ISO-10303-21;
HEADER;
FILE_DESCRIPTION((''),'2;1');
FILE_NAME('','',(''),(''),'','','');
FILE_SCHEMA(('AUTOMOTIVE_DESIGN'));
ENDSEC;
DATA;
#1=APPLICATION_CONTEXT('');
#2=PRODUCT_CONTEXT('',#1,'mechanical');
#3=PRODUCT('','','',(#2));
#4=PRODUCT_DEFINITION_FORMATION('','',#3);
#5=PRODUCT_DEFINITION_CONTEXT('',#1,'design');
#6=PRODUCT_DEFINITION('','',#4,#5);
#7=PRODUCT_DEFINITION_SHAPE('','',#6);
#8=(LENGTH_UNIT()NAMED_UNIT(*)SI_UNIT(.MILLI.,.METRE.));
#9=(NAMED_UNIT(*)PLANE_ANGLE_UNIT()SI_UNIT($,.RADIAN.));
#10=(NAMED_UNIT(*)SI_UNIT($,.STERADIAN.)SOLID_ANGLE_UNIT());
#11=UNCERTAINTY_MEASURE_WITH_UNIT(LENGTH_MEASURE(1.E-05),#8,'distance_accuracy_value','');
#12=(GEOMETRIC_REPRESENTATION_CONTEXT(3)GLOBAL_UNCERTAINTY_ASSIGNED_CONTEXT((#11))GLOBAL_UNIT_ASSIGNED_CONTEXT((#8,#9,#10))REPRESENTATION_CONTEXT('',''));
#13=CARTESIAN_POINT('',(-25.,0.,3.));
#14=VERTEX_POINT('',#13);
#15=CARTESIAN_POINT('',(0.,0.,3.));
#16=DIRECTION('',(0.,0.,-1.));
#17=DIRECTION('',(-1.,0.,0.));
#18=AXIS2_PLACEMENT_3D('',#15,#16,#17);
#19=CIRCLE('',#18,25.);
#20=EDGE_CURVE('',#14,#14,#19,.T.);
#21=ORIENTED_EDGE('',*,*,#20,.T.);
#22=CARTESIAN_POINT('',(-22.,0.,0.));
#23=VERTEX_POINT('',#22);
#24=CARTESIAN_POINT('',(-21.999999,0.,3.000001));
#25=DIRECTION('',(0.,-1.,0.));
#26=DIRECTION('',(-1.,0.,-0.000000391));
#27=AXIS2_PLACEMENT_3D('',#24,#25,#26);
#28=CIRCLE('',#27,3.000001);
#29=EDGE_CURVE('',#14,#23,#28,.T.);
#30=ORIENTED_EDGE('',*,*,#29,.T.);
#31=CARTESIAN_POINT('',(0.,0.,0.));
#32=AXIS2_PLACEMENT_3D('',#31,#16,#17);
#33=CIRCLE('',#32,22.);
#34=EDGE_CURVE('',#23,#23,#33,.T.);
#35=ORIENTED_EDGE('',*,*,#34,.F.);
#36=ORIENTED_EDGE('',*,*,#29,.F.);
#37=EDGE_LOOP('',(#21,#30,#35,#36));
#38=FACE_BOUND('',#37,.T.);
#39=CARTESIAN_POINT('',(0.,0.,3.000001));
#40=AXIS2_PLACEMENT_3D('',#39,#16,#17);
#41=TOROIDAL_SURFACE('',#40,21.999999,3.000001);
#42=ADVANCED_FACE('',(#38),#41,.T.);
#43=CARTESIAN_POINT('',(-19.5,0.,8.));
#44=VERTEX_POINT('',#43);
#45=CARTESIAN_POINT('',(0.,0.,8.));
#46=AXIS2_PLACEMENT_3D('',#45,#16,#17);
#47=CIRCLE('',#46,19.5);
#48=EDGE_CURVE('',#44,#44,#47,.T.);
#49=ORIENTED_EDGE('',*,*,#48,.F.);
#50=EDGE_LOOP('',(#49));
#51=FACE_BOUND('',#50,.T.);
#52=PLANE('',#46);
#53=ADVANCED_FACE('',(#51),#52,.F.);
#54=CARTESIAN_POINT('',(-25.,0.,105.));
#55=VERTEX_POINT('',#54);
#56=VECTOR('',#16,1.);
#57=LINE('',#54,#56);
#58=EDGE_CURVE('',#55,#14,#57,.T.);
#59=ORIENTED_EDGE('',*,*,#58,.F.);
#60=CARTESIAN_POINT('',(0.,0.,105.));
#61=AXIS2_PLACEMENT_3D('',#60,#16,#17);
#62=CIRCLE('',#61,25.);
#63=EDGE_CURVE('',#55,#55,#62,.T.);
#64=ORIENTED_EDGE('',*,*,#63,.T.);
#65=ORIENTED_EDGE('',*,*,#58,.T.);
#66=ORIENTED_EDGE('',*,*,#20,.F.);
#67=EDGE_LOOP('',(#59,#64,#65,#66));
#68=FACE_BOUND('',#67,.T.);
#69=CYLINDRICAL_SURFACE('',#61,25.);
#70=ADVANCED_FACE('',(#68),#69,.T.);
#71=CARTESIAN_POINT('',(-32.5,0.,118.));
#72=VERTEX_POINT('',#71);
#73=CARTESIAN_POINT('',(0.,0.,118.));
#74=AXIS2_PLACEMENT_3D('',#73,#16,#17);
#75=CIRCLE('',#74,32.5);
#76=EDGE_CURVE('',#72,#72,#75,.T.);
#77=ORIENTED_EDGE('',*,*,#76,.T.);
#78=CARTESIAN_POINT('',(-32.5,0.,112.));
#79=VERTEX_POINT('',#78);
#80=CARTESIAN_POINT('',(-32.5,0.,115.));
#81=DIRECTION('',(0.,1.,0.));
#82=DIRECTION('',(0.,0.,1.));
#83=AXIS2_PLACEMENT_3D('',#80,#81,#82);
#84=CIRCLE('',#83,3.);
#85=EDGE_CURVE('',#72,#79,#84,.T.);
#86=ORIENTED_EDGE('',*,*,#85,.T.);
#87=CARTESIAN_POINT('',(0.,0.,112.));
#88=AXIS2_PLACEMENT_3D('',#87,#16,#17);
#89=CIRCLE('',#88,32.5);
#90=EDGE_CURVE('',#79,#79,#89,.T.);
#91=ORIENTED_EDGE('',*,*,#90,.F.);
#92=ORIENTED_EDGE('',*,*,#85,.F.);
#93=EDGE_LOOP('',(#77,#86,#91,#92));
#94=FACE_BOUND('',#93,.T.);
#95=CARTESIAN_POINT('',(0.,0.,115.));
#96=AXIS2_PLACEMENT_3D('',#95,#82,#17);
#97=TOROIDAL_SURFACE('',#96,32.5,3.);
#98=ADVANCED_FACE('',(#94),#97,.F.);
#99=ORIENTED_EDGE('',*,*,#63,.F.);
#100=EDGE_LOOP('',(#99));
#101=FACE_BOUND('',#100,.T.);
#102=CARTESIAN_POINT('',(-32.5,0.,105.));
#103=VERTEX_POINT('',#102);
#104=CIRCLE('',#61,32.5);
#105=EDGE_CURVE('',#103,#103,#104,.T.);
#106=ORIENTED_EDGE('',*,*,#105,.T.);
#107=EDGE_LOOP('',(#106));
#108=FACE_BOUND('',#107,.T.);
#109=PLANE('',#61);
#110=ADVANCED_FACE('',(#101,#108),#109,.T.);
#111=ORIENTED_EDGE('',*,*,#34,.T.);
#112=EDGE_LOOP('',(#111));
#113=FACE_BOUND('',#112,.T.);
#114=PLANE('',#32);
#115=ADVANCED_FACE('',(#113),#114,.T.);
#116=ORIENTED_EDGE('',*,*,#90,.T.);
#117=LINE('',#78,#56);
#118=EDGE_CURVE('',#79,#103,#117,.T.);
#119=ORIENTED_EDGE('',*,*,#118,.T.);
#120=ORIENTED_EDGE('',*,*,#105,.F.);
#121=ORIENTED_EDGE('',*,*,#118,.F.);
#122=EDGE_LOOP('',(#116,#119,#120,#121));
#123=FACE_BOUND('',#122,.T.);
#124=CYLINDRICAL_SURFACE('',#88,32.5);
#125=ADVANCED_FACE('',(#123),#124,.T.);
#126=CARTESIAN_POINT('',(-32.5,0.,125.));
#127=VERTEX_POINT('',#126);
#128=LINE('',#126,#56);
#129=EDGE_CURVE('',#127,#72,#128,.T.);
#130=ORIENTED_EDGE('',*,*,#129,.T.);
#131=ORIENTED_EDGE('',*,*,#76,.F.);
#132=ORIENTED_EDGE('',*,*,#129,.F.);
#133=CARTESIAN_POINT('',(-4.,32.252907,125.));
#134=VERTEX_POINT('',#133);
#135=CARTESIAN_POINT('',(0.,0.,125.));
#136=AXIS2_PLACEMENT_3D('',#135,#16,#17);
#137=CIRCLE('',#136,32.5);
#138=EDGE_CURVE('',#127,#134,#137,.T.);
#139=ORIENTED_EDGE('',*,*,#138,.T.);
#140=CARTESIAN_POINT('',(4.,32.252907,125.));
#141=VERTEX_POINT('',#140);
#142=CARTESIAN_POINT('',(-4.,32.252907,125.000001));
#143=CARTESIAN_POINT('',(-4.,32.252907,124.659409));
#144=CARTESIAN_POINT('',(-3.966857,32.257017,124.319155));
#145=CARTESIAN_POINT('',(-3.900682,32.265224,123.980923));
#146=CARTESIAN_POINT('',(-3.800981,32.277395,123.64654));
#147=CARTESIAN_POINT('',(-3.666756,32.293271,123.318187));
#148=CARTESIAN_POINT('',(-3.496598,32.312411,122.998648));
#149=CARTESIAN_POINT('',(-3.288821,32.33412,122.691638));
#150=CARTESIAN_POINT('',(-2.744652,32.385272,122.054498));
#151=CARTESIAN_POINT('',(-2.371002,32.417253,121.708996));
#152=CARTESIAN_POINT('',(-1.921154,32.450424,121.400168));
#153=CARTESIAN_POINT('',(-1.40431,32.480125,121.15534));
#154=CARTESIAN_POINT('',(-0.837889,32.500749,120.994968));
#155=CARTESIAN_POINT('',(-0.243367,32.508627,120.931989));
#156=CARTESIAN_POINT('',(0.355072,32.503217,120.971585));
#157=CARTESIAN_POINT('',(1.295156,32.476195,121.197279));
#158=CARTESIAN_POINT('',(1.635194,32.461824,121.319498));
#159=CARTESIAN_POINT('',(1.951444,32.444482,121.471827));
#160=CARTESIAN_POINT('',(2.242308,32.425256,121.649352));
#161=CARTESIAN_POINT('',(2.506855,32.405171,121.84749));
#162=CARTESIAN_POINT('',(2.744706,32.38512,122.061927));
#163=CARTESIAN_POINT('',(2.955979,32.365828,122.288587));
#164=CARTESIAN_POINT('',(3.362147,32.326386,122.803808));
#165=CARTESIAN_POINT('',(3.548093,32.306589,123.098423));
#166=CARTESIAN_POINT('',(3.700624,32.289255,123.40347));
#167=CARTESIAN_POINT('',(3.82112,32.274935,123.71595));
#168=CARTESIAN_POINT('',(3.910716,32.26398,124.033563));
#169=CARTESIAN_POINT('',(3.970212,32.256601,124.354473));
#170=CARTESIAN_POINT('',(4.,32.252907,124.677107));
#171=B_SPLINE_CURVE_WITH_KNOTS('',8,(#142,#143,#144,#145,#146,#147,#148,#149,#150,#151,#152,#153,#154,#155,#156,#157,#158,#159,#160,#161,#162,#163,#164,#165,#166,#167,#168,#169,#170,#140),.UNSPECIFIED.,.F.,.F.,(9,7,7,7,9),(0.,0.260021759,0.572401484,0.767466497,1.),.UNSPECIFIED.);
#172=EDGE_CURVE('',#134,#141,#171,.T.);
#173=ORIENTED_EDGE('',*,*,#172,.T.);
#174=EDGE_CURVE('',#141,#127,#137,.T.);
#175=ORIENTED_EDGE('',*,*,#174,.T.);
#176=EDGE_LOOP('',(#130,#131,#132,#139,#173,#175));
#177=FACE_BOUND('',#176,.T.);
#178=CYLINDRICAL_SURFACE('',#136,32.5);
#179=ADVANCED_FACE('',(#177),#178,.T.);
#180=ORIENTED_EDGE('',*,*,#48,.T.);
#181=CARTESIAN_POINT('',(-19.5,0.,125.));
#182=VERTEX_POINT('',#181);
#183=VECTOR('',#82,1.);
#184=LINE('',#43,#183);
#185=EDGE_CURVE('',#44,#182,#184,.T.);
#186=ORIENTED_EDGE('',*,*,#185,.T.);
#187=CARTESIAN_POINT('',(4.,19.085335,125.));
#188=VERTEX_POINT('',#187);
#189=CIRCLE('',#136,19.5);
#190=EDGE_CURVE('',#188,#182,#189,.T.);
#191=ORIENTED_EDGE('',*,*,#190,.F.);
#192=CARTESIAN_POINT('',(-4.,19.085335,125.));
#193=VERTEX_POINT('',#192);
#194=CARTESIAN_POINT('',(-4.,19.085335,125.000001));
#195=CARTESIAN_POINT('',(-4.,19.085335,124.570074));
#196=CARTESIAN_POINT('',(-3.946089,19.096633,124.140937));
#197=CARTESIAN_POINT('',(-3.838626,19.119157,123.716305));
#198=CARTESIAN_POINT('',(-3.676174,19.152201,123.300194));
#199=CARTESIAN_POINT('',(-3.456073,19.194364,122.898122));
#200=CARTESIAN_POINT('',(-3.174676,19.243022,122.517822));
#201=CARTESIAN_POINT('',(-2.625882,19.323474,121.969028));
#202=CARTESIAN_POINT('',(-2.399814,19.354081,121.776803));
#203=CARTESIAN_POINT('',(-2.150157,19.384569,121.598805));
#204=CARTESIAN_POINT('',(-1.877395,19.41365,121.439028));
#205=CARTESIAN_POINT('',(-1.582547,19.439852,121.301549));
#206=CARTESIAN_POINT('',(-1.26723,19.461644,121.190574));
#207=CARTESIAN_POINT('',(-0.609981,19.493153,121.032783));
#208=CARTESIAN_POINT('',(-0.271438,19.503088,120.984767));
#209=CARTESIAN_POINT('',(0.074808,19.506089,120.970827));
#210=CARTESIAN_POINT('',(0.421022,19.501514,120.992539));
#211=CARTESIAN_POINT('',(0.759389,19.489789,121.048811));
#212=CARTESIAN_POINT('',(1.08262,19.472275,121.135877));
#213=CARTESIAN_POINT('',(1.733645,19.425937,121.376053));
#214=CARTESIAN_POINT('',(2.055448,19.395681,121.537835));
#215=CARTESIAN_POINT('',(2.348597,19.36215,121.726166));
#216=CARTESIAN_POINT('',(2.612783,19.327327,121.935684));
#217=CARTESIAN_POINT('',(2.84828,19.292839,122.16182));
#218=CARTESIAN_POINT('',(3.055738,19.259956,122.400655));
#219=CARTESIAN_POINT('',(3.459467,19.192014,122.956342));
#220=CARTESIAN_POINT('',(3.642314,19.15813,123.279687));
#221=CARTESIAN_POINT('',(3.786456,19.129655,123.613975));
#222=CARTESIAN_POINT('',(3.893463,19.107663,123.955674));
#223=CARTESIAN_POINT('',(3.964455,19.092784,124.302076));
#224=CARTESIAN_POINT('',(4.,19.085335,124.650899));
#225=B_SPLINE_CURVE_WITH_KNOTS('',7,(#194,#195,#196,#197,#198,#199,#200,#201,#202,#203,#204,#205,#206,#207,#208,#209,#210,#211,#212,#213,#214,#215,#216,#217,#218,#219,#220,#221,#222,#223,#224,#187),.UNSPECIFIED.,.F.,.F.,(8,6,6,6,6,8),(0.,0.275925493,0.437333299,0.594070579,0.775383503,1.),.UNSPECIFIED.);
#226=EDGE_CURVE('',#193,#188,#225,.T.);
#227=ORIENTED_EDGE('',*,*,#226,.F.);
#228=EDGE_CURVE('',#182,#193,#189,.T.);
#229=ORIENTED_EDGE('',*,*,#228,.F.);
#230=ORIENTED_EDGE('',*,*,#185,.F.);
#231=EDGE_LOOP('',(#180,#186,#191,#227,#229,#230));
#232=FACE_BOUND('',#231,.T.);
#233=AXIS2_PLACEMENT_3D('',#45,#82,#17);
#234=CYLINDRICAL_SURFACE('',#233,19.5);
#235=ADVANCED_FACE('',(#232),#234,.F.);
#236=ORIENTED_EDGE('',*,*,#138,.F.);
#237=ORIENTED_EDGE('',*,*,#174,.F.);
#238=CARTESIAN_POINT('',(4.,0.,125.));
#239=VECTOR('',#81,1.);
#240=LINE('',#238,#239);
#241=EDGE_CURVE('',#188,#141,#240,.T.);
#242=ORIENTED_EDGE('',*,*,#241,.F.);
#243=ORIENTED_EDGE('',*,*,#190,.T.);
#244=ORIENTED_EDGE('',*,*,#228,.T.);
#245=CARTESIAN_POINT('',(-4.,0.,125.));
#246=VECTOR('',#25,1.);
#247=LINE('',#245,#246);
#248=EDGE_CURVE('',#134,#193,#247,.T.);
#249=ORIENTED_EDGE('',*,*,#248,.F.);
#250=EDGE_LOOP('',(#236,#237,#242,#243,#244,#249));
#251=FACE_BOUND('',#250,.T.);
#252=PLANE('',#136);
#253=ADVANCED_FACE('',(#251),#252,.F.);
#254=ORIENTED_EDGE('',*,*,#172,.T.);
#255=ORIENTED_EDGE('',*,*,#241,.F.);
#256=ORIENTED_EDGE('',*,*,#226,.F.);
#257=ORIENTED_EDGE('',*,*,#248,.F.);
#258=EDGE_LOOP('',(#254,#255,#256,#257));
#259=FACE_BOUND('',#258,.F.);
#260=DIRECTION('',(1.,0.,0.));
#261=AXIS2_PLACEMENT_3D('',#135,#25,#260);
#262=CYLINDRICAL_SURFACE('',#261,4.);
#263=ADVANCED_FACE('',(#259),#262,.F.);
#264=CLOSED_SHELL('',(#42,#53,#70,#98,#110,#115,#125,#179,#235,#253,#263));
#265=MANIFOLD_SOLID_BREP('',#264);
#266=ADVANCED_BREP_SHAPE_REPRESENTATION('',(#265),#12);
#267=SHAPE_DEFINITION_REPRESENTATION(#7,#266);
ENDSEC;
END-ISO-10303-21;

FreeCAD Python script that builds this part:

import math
import FreeCAD as App
import Part
import Sketcher
Q = App.Units.Quantity

doc = App.newDocument("Part")
body = doc.addObject("PartDesign::Body", "Body")

# Sketch on XZ plane
sketch1 = doc.addObject("Sketcher::SketchObject", "Sketch")
body.addObject(sketch1)
sketch1.AttachmentSupport = (doc.XZ_Plane, [""])
sketch1.MapMode = "FlatFace"
sketch1.addGeometry(Part.LineSegment(App.Vector(-22, 0, 0), App.Vector(0, 0, 0)), False)
sketch1.addGeometry(Part.LineSegment(App.Vector(0, 0, 0), App.Vector(0, 8, 0)), False)
sketch1.addGeometry(Part.LineSegment(App.Vector(0, 8, 0), App.Vector(-19.5, 8, 0)), False)
sketch1.addGeometry(Part.LineSegment(App.Vector(-19.5, 8, 0), App.Vector(-19.5, 125, 0)), False)
sketch1.addGeometry(Part.LineSegment(App.Vector(-19.5, 125, 0), App.Vector(-32.5, 125, 0)), False)
sketch1.addGeometry(Part.LineSegment(App.Vector(-32.5, 125, 0), App.Vector(-32.5, 118, 0)), False)
sketch1.addGeometry(Part.ArcOfCircle(Part.Circle(App.Vector(-32.5, 115, 0), App.Vector(0, 0, 1), 3), math.radians(-90), math.radians(90)), False)
sketch1.addGeometry(Part.LineSegment(App.Vector(-32.5, 112, 0), App.Vector(-32.5, 105, 0)), False)
sketch1.addGeometry(Part.LineSegment(App.Vector(-32.5, 105, 0), App.Vector(-25, 105, 0)), False)
sketch1.addGeometry(Part.LineSegment(App.Vector(-25, 105, 0), App.Vector(-25, 3, 0)), False)
sketch1.addGeometry(Part.ArcOfCircle(Part.Circle(App.Vector(-22, 3, 0), App.Vector(0, 0, 1), 3), math.radians(-180), math.radians(-90)), False)
sketch1.addConstraint(Sketcher.Constraint("Coincident", 0, 2, 1, 1))
sketch1.addConstraint(Sketcher.Constraint("Coincident", 1, 2, 2, 1))
sketch1.addConstraint(Sketcher.Constraint("Coincident", 2, 2, 3, 1))
sketch1.addConstraint(Sketcher.Constraint("Coincident", 3, 2, 4, 1))
sketch1.addConstraint(Sketcher.Constraint("Coincident", 4, 2, 5, 1))
sketch1.addConstraint(Sketcher.Constraint("Coincident", 5, 2, 6, 2))
sketch1.addConstraint(Sketcher.Constraint("Coincident", 6, 1, 7, 1))
sketch1.addConstraint(Sketcher.Constraint("Coincident", 7, 2, 8, 1))
sketch1.addConstraint(Sketcher.Constraint("Coincident", 8, 2, 9, 1))
sketch1.addConstraint(Sketcher.Constraint("Tangent", 9, 2, 10, 1))
sketch1.addConstraint(Sketcher.Constraint("Tangent", 10, 2, 0, 1))
sketch1.addConstraint(Sketcher.Constraint("Horizontal", 0))
sketch1.addConstraint(Sketcher.Constraint("Vertical", 1))
sketch1.addConstraint(Sketcher.Constraint("Horizontal", 2))
sketch1.addConstraint(Sketcher.Constraint("Vertical", 3))
sketch1.addConstraint(Sketcher.Constraint("Horizontal", 4))
sketch1.addConstraint(Sketcher.Constraint("Vertical", 5))
sketch1.addConstraint(Sketcher.Constraint("Vertical", 7))
sketch1.addConstraint(Sketcher.Constraint("Horizontal", 8))
sketch1.addConstraint(Sketcher.Constraint("Vertical", 9))
sketch1.addConstraint(Sketcher.Constraint("Coincident", 0, 2, -1, 1))
sketch1.addConstraint(Sketcher.Constraint("Equal", 6, 10))
sketch1.addConstraint(Sketcher.Constraint("Vertical", 6, 3, 4, 2))
sketch1.addConstraint(Sketcher.Constraint("Vertical", 5, 2, 6, 1))
sketch1.addConstraint(Sketcher.Constraint("Equal", 5, 7))
sketch1.addConstraint(Sketcher.Constraint("Radius", 6, Q("3 mm")))
sketch1.addConstraint(Sketcher.Constraint("DistanceX", 0, 1, 0, 2, Q("22 mm")))
sketch1.addConstraint(Sketcher.Constraint("DistanceX", 4, 2, 4, 1, Q("13 mm")))
sketch1.addConstraint(Sketcher.Constraint("DistanceY", 1, 1, 1, 2, Q("8 mm")))
sketch1.addConstraint(Sketcher.Constraint("DistanceY", 3, 1, 3, 2, Q("117 mm")))
sketch1.addConstraint(Sketcher.Constraint("DistanceY", 5, 2, 5, 1, Q("7 mm")))
sketch1.addConstraint(Sketcher.Constraint("DistanceX", 2, 2, 2, 1, Q("19.5 mm")))
revolution = doc.addObject("PartDesign::Revolution", "Revolution")
body.addObject(revolution)
revolution.Profile = sketch1
revolution.ReferenceAxis = (sketch1, ["V_Axis"])
revolution.Angle = 360

# Sketch on XZ plane
sketch2 = doc.addObject("Sketcher::SketchObject", "Sketch001")
body.addObject(sketch2)
sketch2.AttachmentSupport = (doc.XZ_Plane, [""])
sketch2.MapMode = "FlatFace"
sketch2.addGeometry(Part.Circle(App.Vector(0, 125, 0), App.Vector(0, 0, 1), 4), False)
sketch2.addConstraint(Sketcher.Constraint("PointOnObject", 0, 3, -2))
sketch2.addConstraint(Sketcher.Constraint("Diameter", 0, Q("8 mm")))
sketch2.addConstraint(Sketcher.Constraint("DistanceY", -1, 1, 0, 3, Q("125 mm")))
pocket1 = doc.addObject("PartDesign::Pocket", "Pocket")
body.addObject(pocket1)
pocket1.Profile = sketch2
pocket1.Length = 50

doc.recompute()
